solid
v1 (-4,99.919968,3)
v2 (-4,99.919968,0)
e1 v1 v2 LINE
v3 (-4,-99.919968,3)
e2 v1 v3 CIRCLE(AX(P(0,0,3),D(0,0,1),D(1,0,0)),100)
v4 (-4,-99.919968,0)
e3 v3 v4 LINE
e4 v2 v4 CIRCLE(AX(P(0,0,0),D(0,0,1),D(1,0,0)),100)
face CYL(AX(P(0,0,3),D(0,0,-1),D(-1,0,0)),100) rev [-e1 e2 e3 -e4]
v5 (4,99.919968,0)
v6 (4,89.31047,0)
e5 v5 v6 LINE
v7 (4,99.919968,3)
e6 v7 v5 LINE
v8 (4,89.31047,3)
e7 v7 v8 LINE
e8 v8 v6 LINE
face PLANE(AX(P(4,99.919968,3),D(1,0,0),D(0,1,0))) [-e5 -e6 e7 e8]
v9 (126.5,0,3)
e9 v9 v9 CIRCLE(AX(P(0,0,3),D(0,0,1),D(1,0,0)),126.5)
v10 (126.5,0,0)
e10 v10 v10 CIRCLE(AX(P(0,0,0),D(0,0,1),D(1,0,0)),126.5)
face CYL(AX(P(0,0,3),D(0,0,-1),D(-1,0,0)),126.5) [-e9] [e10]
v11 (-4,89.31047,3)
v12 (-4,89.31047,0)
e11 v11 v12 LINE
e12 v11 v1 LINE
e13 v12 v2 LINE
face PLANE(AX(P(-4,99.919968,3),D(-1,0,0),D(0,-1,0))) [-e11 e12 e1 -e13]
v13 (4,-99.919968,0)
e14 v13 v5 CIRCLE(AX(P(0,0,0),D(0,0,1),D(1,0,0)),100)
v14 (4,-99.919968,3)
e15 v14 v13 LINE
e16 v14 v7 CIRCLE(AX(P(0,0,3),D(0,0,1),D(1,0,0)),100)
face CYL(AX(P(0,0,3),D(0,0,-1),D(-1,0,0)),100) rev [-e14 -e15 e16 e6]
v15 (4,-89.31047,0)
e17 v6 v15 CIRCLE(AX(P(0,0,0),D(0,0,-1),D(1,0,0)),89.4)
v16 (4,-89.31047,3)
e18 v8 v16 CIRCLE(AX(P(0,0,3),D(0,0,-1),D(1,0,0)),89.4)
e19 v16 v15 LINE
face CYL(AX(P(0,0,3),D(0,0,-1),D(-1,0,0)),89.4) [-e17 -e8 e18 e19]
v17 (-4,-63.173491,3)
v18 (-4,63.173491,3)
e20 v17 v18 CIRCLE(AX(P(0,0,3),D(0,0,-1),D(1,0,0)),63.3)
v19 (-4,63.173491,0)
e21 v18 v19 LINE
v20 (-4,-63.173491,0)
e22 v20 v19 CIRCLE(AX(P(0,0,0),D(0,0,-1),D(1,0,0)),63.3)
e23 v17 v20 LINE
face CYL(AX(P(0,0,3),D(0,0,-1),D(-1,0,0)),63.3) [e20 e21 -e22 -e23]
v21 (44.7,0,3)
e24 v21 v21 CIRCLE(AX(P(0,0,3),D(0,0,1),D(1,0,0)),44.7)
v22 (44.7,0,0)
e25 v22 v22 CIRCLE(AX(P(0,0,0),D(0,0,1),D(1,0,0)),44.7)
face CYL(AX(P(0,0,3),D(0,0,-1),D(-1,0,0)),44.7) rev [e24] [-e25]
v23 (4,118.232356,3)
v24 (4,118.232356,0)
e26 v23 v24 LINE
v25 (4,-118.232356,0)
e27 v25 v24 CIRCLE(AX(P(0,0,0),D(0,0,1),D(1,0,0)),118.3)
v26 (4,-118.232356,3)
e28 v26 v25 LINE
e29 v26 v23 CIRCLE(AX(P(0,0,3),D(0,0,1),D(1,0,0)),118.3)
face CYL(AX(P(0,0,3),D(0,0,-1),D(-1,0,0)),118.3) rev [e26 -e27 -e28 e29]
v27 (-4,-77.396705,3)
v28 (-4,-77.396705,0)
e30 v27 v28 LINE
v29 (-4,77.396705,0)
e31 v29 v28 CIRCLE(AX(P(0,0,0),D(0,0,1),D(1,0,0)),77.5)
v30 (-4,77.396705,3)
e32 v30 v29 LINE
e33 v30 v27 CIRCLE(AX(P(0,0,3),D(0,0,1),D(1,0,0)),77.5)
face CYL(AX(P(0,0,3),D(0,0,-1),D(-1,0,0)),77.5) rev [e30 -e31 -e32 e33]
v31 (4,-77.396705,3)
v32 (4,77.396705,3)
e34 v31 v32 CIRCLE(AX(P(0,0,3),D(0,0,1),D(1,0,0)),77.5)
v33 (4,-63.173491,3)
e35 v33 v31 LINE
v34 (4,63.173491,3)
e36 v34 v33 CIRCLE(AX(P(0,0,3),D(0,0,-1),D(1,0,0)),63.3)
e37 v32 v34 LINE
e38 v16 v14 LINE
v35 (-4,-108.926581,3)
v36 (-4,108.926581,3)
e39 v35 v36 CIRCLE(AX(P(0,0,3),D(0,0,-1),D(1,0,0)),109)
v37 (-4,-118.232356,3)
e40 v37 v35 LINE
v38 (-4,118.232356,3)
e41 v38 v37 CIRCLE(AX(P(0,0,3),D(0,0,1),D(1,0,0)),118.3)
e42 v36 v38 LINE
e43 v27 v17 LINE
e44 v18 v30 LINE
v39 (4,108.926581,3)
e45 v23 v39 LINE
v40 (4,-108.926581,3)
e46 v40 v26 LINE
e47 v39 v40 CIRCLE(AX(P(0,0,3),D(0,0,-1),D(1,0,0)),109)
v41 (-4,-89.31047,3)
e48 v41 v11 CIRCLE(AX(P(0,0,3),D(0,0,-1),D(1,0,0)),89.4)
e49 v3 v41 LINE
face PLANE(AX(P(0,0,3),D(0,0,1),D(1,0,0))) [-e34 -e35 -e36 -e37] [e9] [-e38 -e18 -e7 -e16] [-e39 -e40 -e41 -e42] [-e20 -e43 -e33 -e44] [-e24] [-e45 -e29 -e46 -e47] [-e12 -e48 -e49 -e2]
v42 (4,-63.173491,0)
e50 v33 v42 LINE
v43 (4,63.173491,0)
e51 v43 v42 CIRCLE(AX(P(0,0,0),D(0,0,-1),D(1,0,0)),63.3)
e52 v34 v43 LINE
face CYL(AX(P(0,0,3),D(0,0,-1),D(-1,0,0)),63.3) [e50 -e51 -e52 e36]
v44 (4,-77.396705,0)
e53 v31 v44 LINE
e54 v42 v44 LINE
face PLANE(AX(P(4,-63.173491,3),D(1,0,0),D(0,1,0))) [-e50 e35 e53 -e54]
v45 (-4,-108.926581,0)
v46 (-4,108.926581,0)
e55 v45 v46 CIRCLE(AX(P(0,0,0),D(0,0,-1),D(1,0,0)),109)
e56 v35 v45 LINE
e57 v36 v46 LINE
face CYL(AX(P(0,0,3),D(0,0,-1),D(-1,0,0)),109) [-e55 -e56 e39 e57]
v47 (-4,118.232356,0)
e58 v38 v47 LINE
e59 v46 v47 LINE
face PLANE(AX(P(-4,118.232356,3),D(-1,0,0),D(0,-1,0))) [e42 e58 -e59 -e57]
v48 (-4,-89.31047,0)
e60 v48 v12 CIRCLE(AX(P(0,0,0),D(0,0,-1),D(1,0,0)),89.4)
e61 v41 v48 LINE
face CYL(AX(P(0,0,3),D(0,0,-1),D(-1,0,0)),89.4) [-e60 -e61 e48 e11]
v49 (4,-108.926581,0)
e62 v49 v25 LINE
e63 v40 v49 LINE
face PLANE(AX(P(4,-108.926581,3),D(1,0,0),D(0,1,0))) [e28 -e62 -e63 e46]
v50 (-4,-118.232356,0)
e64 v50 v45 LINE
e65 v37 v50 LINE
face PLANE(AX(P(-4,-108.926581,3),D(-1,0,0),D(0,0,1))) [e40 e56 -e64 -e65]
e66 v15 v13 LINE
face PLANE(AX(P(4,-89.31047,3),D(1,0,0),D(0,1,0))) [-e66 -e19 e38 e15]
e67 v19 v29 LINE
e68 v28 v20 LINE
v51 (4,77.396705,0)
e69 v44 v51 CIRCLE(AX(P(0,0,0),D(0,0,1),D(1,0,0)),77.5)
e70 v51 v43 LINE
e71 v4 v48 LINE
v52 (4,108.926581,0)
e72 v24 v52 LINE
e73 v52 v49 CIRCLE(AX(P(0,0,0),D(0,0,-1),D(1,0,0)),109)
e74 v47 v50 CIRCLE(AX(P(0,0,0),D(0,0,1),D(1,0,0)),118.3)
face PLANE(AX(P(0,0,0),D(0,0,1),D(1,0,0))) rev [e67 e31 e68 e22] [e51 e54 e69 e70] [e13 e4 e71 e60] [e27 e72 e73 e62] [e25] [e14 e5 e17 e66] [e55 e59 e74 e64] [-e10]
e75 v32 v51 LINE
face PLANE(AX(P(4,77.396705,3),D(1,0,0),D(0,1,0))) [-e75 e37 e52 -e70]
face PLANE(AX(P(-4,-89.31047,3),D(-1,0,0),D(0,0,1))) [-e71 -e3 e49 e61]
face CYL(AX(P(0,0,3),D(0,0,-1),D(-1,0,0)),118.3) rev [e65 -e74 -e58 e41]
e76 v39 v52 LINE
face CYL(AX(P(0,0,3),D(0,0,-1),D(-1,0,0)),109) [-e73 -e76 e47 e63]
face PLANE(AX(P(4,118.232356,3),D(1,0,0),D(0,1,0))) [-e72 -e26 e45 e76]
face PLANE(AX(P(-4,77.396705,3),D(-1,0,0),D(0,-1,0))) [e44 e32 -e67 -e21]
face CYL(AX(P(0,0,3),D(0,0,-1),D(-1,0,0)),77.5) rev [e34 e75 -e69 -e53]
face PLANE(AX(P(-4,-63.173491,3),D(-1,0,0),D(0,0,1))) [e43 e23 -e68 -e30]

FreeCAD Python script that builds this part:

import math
import FreeCAD as App
import Part
import Sketcher
Q = App.Units.Quantity

doc = App.newDocument("Part")
body = doc.addObject("PartDesign::Body", "Body")

# Sketch on XY plane
sketch1 = body.newObject("Sketcher::SketchObject", "Sketch")
sketch1.AttachmentSupport = (doc.getObject("XY_Plane"), [""])
sketch1.MapMode = "FlatFace"
sketch1.addGeometry([
    Part.Circle(App.Vector(0, 0, 0), App.Vector(0, 0, 1), 126),  # 0
    Part.ArcOfCircle(Part.Circle(App.Vector(0, 0, 0), App.Vector(0, 0, 1), 118), math.radians(92), math.radians(268)),  # 1
    Part.LineSegment(App.Vector(-4, 118, 0), App.Vector(-4, 109, 0)),  # 2
    Part.ArcOfCircle(Part.Circle(App.Vector(0, 0, 0), App.Vector(0, 0, 1), 109), math.radians(92), math.radians(268)),  # 3
    Part.LineSegment(App.Vector(-4, -109, 0), App.Vector(-4, -118, 0)),  # 4
    Part.ArcOfCircle(Part.Circle(App.Vector(0, 0, 0), App.Vector(0, 0, 1), 63), math.radians(94), math.radians(266)),  # 5
    Part.LineSegment(App.Vector(-4, -63, 0), App.Vector(-4, -77, 0)),  # 6
    Part.ArcOfCircle(Part.Circle(App.Vector(0, 0, 0), App.Vector(0, 0, 1), 78), math.radians(93), math.radians(267)),  # 7
    Part.LineSegment(App.Vector(-4, 77, 0), App.Vector(-4, 63, 0)),  # 8
    Part.Circle(App.Vector(0, 0, 0), App.Vector(0, 0, 1), 45),  # 9
    Part.LineSegment(App.Vector(4, -77, 0), App.Vector(4, -63, 0)),  # 10
    Part.ArcOfCircle(Part.Circle(App.Vector(0, 0, 0), App.Vector(0, 0, 1), 63), math.radians(-86), math.radians(86)),  # 11
    Part.LineSegment(App.Vector(4, 63, 0), App.Vector(4, 77, 0)),  # 12
    Part.ArcOfCircle(Part.Circle(App.Vector(0, 0, 0), App.Vector(0, 0, 1), 78), math.radians(-87), math.radians(87)),  # 13
    Part.LineSegment(App.Vector(4, 109, 0), App.Vector(4, 118, 0)),  # 14
    Part.ArcOfCircle(Part.Circle(App.Vector(0, 0, 0), App.Vector(0, 0, 1), 118), math.radians(-88), math.radians(88)),  # 15
    Part.LineSegment(App.Vector(4, -118, 0), App.Vector(4, -109, 0)),  # 16
    Part.ArcOfCircle(Part.Circle(App.Vector(0, 0, 0), App.Vector(0, 0, 1), 109), math.radians(-88), math.radians(88)),  # 17
    Part.ArcOfCircle(Part.Circle(App.Vector(0, 0, 0), App.Vector(0, 0, 1), 100), math.radians(92), math.radians(268)),  # 18
    Part.LineSegment(App.Vector(-4, 100, 0), App.Vector(-4, 89, 0)),  # 19
    Part.ArcOfCircle(Part.Circle(App.Vector(0, 0, 0), App.Vector(0, 0, 1), 89), math.radians(93), math.radians(267)),  # 20
    Part.LineSegment(App.Vector(-4, -89, 0), App.Vector(-4, -100, 0)),  # 21
    Part.LineSegment(App.Vector(4, 89, 0), App.Vector(4, 100, 0)),  # 22
    Part.ArcOfCircle(Part.Circle(App.Vector(0, 0, 0), App.Vector(0, 0, 1), 100), math.radians(-88), math.radians(88)),  # 23
    Part.LineSegment(App.Vector(4, -100, 0), App.Vector(4, -89, 0)),  # 24
    Part.ArcOfCircle(Part.Circle(App.Vector(0, 0, 0), App.Vector(0, 0, 1), 89), math.radians(-87), math.radians(87)),  # 25
], False)
sketch1.addConstraint([
    Sketcher.Constraint("Coincident", 1, 1, 2, 1),
    Sketcher.Constraint("Coincident", 2, 2, 3, 1),
    Sketcher.Constraint("Coincident", 3, 2, 4, 1),
    Sketcher.Constraint("Coincident", 4, 2, 1, 2),
    Sketcher.Constraint("Coincident", 5, 2, 6, 1),
    Sketcher.Constraint("Coincident", 6, 2, 7, 2),
    Sketcher.Constraint("Coincident", 7, 1, 8, 1),
    Sketcher.Constraint("Coincident", 8, 2, 5, 1),
    Sketcher.Constraint("Coincident", 10, 2, 11, 1),
    Sketcher.Constraint("Coincident", 11, 2, 12, 1),
    Sketcher.Constraint("Coincident", 12, 2, 13, 2),
    Sketcher.Constraint("Coincident", 13, 1, 10, 1),
    Sketcher.Constraint("Coincident", 14, 2, 15, 2),
    Sketcher.Constraint("Coincident", 15, 1, 16, 1),
    Sketcher.Constraint("Coincident", 16, 2, 17, 1),
    Sketcher.Constraint("Coincident", 17, 2, 14, 1),
    Sketcher.Constraint("Coincident", 18, 1, 19, 1),
    Sketcher.Constraint("Coincident", 19, 2, 20, 1),
    Sketcher.Constraint("Coincident", 20, 2, 21, 1),
    Sketcher.Constraint("Coincident", 21, 2, 18, 2),
    Sketcher.Constraint("Coincident", 22, 2, 23, 2),
    Sketcher.Constraint("Coincident", 23, 1, 24, 1),
    Sketcher.Constraint("Coincident", 24, 2, 25, 1),
    Sketcher.Constraint("Coincident", 25, 2, 22, 1),
    Sketcher.Constraint("Vertical", 2),
    Sketcher.Constraint("Vertical", 4),
    Sketcher.Constraint("Vertical", 6),
    Sketcher.Constraint("Vertical", 8),
    Sketcher.Constraint("Vertical", 10),
    Sketcher.Constraint("Vertical", 12),
    Sketcher.Constraint("Vertical", 14),
    Sketcher.Constraint("Vertical", 16),
    Sketcher.Constraint("Vertical", 19),
    Sketcher.Constraint("Vertical", 21),
    Sketcher.Constraint("Vertical", 22),
    Sketcher.Constraint("Vertical", 24),
    Sketcher.Constraint("Coincident", 0, 3, -1, 1),
    Sketcher.Constraint("Coincident", 1, 3, -1, 1),
    Sketcher.Constraint("Coincident", 3, 3, -1, 1),
    Sketcher.Constraint("Coincident", 5, 3, -1, 1),
    Sketcher.Constraint("Coincident", 7, 3, -1, 1),
    Sketcher.Constraint("Coincident", 9, 3, -1, 1),
    Sketcher.Constraint("Coincident", 11, 3, -1, 1),
    Sketcher.Constraint("Coincident", 13, 3, -1, 1),
    Sketcher.Constraint("Coincident", 15, 3, -1, 1),
    Sketcher.Constraint("Coincident", 17, 3, -1, 1),
    Sketcher.Constraint("Coincident", 18, 3, -1, 1),
    Sketcher.Constraint("Coincident", 20, 3, -1, 1),
    Sketcher.Constraint("Coincident", 23, 3, -1, 1),
    Sketcher.Constraint("Coincident", 25, 3, -1, 1),
    Sketcher.Constraint("Equal", 5, 11),
    Sketcher.Constraint("Equal", 7, 13),
    Sketcher.Constraint("Equal", 1, 15),
    Sketcher.Constraint("Equal", 3, 17),
    Sketcher.Constraint("Equal", 18, 23),
    Sketcher.Constraint("Equal", 20, 25),
    Sketcher.Constraint("Horizontal", 5, 2, 10, 2),
    Sketcher.Constraint("Horizontal", 8, 2, 11, 2),
    Sketcher.Constraint("Horizontal", 1, 1, 14, 2),
    Sketcher.Constraint("Horizontal", 4, 2, 15, 1),
    Sketcher.Constraint("Horizontal", 18, 1, 22, 2),
    Sketcher.Constraint("Horizontal", 21, 2, 23, 1),
    Sketcher.Constraint("Vertical", 2, 2, 3, 2),
    Sketcher.Constraint("Vertical", 4, 2, 5, 2),
    Sketcher.Constraint("Vertical", 6, 2, 7, 1),
    Sketcher.Constraint("Vertical", 8, 2, 18, 1),
    Sketcher.Constraint("Vertical", 19, 2, 20, 2),
    Sketcher.Constraint("Diameter", 0, Q("253 mm")),
    Sketcher.Constraint("Radius", 3, Q("109 mm")),
    Sketcher.Constraint("Radius", 18, Q("100 mm")),
    Sketcher.Constraint("Diameter", 9, Q("89.4 mm")),
    Sketcher.Constraint("Radius", 1, Q("118.3 mm")),
    Sketcher.Constraint("Radius", 5, Q("63.3 mm")),
    Sketcher.Constraint("Radius", 7, Q("77.5 mm")),
    Sketcher.Constraint("Radius", 20, Q("89.4 mm")),
    Sketcher.Constraint("DistanceX", 2, 2, -1, 1, Q("4 mm")),
])
pad1 = body.newObject("PartDesign::Pad", "Pad")
pad1.Profile = sketch1
pad1.Length = 3

doc.recompute()
